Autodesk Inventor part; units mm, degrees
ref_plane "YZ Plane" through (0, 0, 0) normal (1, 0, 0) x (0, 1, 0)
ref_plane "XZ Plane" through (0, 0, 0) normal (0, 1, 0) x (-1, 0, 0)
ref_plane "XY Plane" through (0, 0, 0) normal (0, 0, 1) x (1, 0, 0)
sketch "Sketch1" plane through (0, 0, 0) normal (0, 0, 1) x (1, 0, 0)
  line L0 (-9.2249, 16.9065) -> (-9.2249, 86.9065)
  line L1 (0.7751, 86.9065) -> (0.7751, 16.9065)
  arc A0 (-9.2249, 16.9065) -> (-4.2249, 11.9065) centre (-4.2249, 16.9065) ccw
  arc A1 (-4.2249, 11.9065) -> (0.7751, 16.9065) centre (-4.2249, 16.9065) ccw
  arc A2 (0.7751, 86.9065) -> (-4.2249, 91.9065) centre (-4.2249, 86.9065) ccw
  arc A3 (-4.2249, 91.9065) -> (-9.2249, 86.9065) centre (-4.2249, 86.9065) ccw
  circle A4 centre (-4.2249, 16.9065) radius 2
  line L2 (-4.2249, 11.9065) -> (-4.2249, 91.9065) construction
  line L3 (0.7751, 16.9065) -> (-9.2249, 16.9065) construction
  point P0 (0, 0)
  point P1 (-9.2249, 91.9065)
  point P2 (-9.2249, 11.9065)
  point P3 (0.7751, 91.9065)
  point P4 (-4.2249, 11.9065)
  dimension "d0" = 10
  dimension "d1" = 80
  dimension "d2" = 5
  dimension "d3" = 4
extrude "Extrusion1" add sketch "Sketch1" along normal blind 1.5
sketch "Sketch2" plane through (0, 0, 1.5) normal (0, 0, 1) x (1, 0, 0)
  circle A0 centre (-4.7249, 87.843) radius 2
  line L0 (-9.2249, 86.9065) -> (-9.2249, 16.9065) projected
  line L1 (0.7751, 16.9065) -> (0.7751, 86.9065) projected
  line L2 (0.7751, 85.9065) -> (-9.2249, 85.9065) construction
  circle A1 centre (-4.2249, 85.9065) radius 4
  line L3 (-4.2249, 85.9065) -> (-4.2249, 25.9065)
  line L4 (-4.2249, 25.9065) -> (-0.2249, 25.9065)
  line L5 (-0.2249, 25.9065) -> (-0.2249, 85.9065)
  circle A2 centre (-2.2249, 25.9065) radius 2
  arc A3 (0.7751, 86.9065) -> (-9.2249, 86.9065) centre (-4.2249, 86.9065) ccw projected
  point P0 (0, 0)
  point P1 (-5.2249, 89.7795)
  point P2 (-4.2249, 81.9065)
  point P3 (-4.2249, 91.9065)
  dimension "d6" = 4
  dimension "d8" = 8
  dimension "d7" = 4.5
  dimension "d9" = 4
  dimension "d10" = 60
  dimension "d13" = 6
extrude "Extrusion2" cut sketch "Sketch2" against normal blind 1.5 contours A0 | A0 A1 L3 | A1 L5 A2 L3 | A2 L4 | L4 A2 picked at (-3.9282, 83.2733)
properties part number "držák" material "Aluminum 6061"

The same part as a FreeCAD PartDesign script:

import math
import FreeCAD as App
import Part
import Sketcher
from FreeCAD import Vector
Q = App.Units.Quantity

doc = App.newDocument("Part")
body = doc.addObject("PartDesign::Body", "Body")

# Sketch on XY plane
sketch1 = body.newObject("Sketcher::SketchObject", "Sketch")
sketch1.AttachmentSupport = (doc.getObject("XY_Plane"), [""])
sketch1.MapMode = "FlatFace"
sketch1.addGeometry([
    Part.LineSegment(Vector(-9.2, 86.9, 0), Vector(-9.2, 16.9, 0)),  # 0
    Part.ArcOfCircle(Part.Circle(Vector(-4.2, 16.9, 0), Vector(0, 0, 1), 5), math.radians(180), math.radians(360)),  # 1
    Part.LineSegment(Vector(0.8, 16.9, 0), Vector(0.8, 86.9, 0)),  # 2
    Part.ArcOfCircle(Part.Circle(Vector(-4.2, 86.9, 0), Vector(0, 0, 1), 5), math.radians(0), math.radians(180)),  # 3
    Part.Circle(Vector(-4.2, 16.9, 0), Vector(0, 0, 1), 2),  # 4
], False)
sketch1.addConstraint([
    Sketcher.Constraint("Tangent", 0, 2, 1, 1),
    Sketcher.Constraint("Tangent", 1, 2, 2, 1),
    Sketcher.Constraint("Tangent", 2, 2, 3, 1),
    Sketcher.Constraint("Tangent", 3, 2, 0, 1),
    Sketcher.Constraint("Vertical", 0),
    Sketcher.Constraint("Vertical", 2),
    Sketcher.Constraint("Coincident", 4, 3, 1, 3),
    Sketcher.Constraint("Diameter", 4, Q("4 mm")),
    Sketcher.Constraint("Radius", 1, Q("5 mm")),
    Sketcher.Constraint("DistanceY", 0, 2, 0, 1, Q("70 mm")),
    Sketcher.Constraint("DistanceX", 1, 3, -1, 1, Q("4.225 mm")),
    Sketcher.Constraint("DistanceY", -1, 1, 1, 3, Q("16.9065 mm")),
])
pad1 = body.newObject("PartDesign::Pad", "Pad")
pad1.Profile = sketch1
pad1.Length = 1.5

# Sketch on XY plane
sketch2 = body.newObject("Sketcher::SketchObject", "Sketch001")
sketch2.AttachmentSupport = (doc.getObject("XY_Plane"), [""])
sketch2.MapMode = "FlatFace"
sketch2.AttachmentOffset = App.Placement(Vector(0, 0, 1.5), App.Rotation())
sketch2.addGeometry([
    Part.ArcOfCircle(Part.Circle(Vector(-4.7, 87.8, 0), Vector(0, 0, 1), 2), math.radians(104), math.radians(284)),  # 0
    Part.LineSegment(Vector(-4.2, 85.9, 0), Vector(-4.2, 25.9, 0)),  # 1
    Part.ArcOfCircle(Part.Circle(Vector(-2.2, 25.9, 0), Vector(0, 0, 1), 2), math.radians(180), math.radians(360)),  # 2
    Part.LineSegment(Vector(-0.2, 25.9, 0), Vector(-0.2, 85.9, 0)),  # 3
    Part.ArcOfCircle(Part.Circle(Vector(-4.2, 85.9, 0), Vector(0, 0, 1), 4), math.radians(0), math.radians(104)),  # 4
], False)
sketch2.addConstraint([
    Sketcher.Constraint("Coincident", 0, 2, 1, 1),
    Sketcher.Constraint("Tangent", 1, 2, 2, 1),
    Sketcher.Constraint("Tangent", 2, 2, 3, 1),
    Sketcher.Constraint("Tangent", 3, 2, 4, 1),
    Sketcher.Constraint("Tangent", 4, 2, 0, 1),
    Sketcher.Constraint("Vertical", 1),
    Sketcher.Constraint("Vertical", 3),
    Sketcher.Constraint("Coincident", 0, 2, 4, 3),
    Sketcher.Constraint("Radius", 0, Q("2 mm")),
    Sketcher.Constraint("DistanceY", 1, 2, 1, 1, Q("60 mm")),
    Sketcher.Constraint("DistanceX", 0, 3, 2, 2, Q("4.5 mm")),
    Sketcher.Constraint("DistanceX", 0, 3, -1, 1, Q("4.725 mm")),
    Sketcher.Constraint("DistanceY", -1, 1, 0, 3, Q("87.843 mm")),
])
pocket1 = body.newObject("PartDesign::Pocket", "Pocket")
pocket1.Profile = sketch2
pocket1.Length = 1.5

doc.recompute()
